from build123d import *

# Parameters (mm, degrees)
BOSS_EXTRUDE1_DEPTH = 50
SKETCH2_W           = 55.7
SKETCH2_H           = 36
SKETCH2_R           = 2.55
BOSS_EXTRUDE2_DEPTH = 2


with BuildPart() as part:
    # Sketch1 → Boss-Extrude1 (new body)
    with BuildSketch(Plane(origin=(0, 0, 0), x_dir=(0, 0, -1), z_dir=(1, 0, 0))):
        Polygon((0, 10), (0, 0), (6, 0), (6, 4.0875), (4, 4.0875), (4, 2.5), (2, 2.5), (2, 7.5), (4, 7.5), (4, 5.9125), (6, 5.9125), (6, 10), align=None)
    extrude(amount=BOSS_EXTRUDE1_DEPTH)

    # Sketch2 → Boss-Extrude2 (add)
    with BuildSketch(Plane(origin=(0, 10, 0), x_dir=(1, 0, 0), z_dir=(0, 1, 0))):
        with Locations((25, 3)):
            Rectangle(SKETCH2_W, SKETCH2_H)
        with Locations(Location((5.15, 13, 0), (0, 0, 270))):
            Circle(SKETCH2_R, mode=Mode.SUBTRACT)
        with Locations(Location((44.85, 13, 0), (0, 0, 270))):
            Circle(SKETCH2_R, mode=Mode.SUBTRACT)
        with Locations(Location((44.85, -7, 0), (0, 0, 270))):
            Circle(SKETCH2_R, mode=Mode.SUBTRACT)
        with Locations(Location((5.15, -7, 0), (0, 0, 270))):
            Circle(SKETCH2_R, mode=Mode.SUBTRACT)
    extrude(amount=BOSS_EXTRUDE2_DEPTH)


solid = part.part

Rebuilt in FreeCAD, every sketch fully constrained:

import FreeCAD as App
import Part
import Sketcher
from FreeCAD import Vector

doc = App.newDocument("Part")
body = doc.addObject("PartDesign::Body", "Body")

# Sketch on YZ plane
sketch1 = body.newObject("Sketcher::SketchObject", "Sketch")
sketch1.AttachmentSupport = (doc.getObject("YZ_Plane"), [""])
sketch1.MapMode = "FlatFace"
sketch1.addGeometry(Part.LineSegment(Vector(10, 0, 0), Vector(0, 0, 0)), False)
sketch1.addGeometry(Part.LineSegment(Vector(0, 0, 0), Vector(0, -6, 0)), False)
sketch1.addGeometry(Part.LineSegment(Vector(0, -6, 0), Vector(4.1, -6, 0)), False)
sketch1.addGeometry(Part.LineSegment(Vector(4.1, -6, 0), Vector(4.1, -4, 0)), False)
sketch1.addGeometry(Part.LineSegment(Vector(4.1, -4, 0), Vector(2.5, -4, 0)), False)
sketch1.addGeometry(Part.LineSegment(Vector(2.5, -4, 0), Vector(2.5, -2, 0)), False)
sketch1.addGeometry(Part.LineSegment(Vector(2.5, -2, 0), Vector(7.5, -2, 0)), False)
sketch1.addGeometry(Part.LineSegment(Vector(7.5, -2, 0), Vector(7.5, -4, 0)), False)
sketch1.addGeometry(Part.LineSegment(Vector(7.5, -4, 0), Vector(5.9, -4, 0)), False)
sketch1.addGeometry(Part.LineSegment(Vector(5.9, -4, 0), Vector(5.9, -6, 0)), False)
sketch1.addGeometry(Part.LineSegment(Vector(5.9, -6, 0), Vector(10, -6, 0)), False)
sketch1.addGeometry(Part.LineSegment(Vector(10, -6, 0), Vector(10, 0, 0)), False)
sketch1.addConstraint(Sketcher.Constraint("Coincident", 0, 2, 1, 1))
sketch1.addConstraint(Sketcher.Constraint("Coincident", 1, 2, 2, 1))
sketch1.addConstraint(Sketcher.Constraint("Coincident", 2, 2, 3, 1))
sketch1.addConstraint(Sketcher.Constraint("Coincident", 3, 2, 4, 1))
sketch1.addConstraint(Sketcher.Constraint("Coincident", 4, 2, 5, 1))
sketch1.addConstraint(Sketcher.Constraint("Coincident", 5, 2, 6, 1))
sketch1.addConstraint(Sketcher.Constraint("Coincident", 6, 2, 7, 1))
sketch1.addConstraint(Sketcher.Constraint("Coincident", 7, 2, 8, 1))
sketch1.addConstraint(Sketcher.Constraint("Coincident", 8, 2, 9, 1))
sketch1.addConstraint(Sketcher.Constraint("Coincident", 9, 2, 10, 1))
sketch1.addConstraint(Sketcher.Constraint("Coincident", 10, 2, 11, 1))
sketch1.addConstraint(Sketcher.Constraint("Coincident", 11, 2, 0, 1))
sketch1.addConstraint(Sketcher.Constraint("Horizontal", 0))
sketch1.addConstraint(Sketcher.Constraint("Vertical", 1))
sketch1.addConstraint(Sketcher.Constraint("Horizontal", 2))
sketch1.addConstraint(Sketcher.Constraint("Vertical", 3))
sketch1.addConstraint(Sketcher.Constraint("Horizontal", 4))
sketch1.addConstraint(Sketcher.Constraint("Vertical", 5))
sketch1.addConstraint(Sketcher.Constraint("Horizontal", 6))
sketch1.addConstraint(Sketcher.Constraint("Vertical", 7))
sketch1.addConstraint(Sketcher.Constraint("Horizontal", 8))
sketch1.addConstraint(Sketcher.Constraint("Vertical", 9))
sketch1.addConstraint(Sketcher.Constraint("Horizontal", 10))
sketch1.addConstraint(Sketcher.Constraint("Vertical", 11))
sketch1.addConstraint(Sketcher.Constraint("Coincident", 0, 2, -1, 1))
sketch1.addConstraint(Sketcher.Constraint("Horizontal", 4, 2, 7, 2))
sketch1.addConstraint(Sketcher.Constraint("Horizontal", 2, 2, 9, 2))
sketch1.addConstraint(Sketcher.Constraint("Equal", 4, 8))
sketch1.addConstraint(Sketcher.Constraint("Equal", 2, 10))
sketch1.addConstraint(Sketcher.Constraint("Equal", 3, 5))
sketch1.addConstraint(Sketcher.Constraint("DistanceX", 0, 2, 0, 1, 10.0))
sketch1.addConstraint(Sketcher.Constraint("DistanceX", 6, 1, 6, 2, 5.0))
sketch1.addConstraint(Sketcher.Constraint("DistanceY", 1, 2, 1, 1, 6.0))
sketch1.addConstraint(Sketcher.Constraint("DistanceY", 3, 1, 3, 2, 2.0))
sketch1.addConstraint(Sketcher.Constraint("DistanceX", 2, 1, 2, 2, 4.0875))
pad1 = body.newObject("PartDesign::Pad", "Pad")
pad1.Profile = sketch1
pad1.Length = 50

# Sketch on XZ plane
sketch2 = body.newObject("Sketcher::SketchObject", "Sketch001")
sketch2.AttachmentSupport = (doc.getObject("XZ_Plane"), [""])
sketch2.MapMode = "FlatFace"
sketch2.AttachmentOffset = App.Placement(Vector(0, 0, -10), App.Rotation())
sketch2.addGeometry(Part.LineSegment(Vector(-2.9, -21, 0), Vector(-2.9, 15, 0)), False)
sketch2.addGeometry(Part.LineSegment(Vector(-2.9, 15, 0), Vector(52.9, 15, 0)), False)
sketch2.addGeometry(Part.LineSegment(Vector(52.9, 15, 0), Vector(52.9, -21, 0)), False)
sketch2.addGeometry(Part.LineSegment(Vector(52.9, -21, 0), Vector(-2.9, -21, 0)), False)
sketch2.addGeometry(Part.Circle(Vector(5.2, 7, 0), Vector(0, 0, 1), 2.5), False)
sketch2.addGeometry(Part.Circle(Vector(44.9, 7, 0), Vector(0, 0, 1), 2.5), False)
sketch2.addGeometry(Part.Circle(Vector(5.2, -13, 0), Vector(0, 0, 1), 2.5), False)
sketch2.addGeometry(Part.Circle(Vector(44.9, -13, 0), Vector(0, 0, 1), 2.5), False)
sketch2.addConstraint(Sketcher.Constraint("Coincident", 0, 2, 1, 1))
sketch2.addConstraint(Sketcher.Constraint("Coincident", 1, 2, 2, 1))
sketch2.addConstraint(Sketcher.Constraint("Coincident", 2, 2, 3, 1))
sketch2.addConstraint(Sketcher.Constraint("Coincident", 3, 2, 0, 1))
sketch2.addConstraint(Sketcher.Constraint("Vertical", 0))
sketch2.addConstraint(Sketcher.Constraint("Horizontal", 1))
sketch2.addConstraint(Sketcher.Constraint("Vertical", 2))
sketch2.addConstraint(Sketcher.Constraint("Horizontal", 3))
sketch2.addConstraint(Sketcher.Constraint("Equal", 4, 5))
sketch2.addConstraint(Sketcher.Constraint("Equal", 5, 6))
sketch2.addConstraint(Sketcher.Constraint("Equal", 6, 7))
sketch2.addConstraint(Sketcher.Constraint("Horizontal", 4, 3, 5, 3))
sketch2.addConstraint(Sketcher.Constraint("Horizontal", 6, 3, 7, 3))
sketch2.addConstraint(Sketcher.Constraint("Vertical", 4, 3, 6, 3))
sketch2.addConstraint(Sketcher.Constraint("Vertical", 5, 3, 7, 3))
sketch2.addConstraint(Sketcher.Constraint("Diameter", 4, 5.1))
sketch2.addConstraint(Sketcher.Constraint("DistanceY", 0, 1, 0, 2, 36.0))
sketch2.addConstraint(Sketcher.Constraint("DistanceX", 1, 1, 1, 2, 55.7))
sketch2.addConstraint(Sketcher.Constraint("DistanceY", -1, 1, 4, 3, 7.0))
sketch2.addConstraint(Sketcher.Constraint("DistanceY", 6, 3, -1, 1, 13.0))
sketch2.addConstraint(Sketcher.Constraint("DistanceY", -1, 1, 0, 2, 15.0))
sketch2.addConstraint(Sketcher.Constraint("DistanceX", 0, 2, 4, 3, 8.0))
sketch2.addConstraint(Sketcher.Constraint("DistanceX", 5, 3, 1, 2, 8.0))
sketch2.addConstraint(Sketcher.Constraint("DistanceX", -1, 1, 4, 3, 5.15))
pad2 = body.newObject("PartDesign::Pad", "Pad001")
pad2.Profile = sketch2
pad2.Length = 2
pad2.Reversed = True

doc.recompute()
